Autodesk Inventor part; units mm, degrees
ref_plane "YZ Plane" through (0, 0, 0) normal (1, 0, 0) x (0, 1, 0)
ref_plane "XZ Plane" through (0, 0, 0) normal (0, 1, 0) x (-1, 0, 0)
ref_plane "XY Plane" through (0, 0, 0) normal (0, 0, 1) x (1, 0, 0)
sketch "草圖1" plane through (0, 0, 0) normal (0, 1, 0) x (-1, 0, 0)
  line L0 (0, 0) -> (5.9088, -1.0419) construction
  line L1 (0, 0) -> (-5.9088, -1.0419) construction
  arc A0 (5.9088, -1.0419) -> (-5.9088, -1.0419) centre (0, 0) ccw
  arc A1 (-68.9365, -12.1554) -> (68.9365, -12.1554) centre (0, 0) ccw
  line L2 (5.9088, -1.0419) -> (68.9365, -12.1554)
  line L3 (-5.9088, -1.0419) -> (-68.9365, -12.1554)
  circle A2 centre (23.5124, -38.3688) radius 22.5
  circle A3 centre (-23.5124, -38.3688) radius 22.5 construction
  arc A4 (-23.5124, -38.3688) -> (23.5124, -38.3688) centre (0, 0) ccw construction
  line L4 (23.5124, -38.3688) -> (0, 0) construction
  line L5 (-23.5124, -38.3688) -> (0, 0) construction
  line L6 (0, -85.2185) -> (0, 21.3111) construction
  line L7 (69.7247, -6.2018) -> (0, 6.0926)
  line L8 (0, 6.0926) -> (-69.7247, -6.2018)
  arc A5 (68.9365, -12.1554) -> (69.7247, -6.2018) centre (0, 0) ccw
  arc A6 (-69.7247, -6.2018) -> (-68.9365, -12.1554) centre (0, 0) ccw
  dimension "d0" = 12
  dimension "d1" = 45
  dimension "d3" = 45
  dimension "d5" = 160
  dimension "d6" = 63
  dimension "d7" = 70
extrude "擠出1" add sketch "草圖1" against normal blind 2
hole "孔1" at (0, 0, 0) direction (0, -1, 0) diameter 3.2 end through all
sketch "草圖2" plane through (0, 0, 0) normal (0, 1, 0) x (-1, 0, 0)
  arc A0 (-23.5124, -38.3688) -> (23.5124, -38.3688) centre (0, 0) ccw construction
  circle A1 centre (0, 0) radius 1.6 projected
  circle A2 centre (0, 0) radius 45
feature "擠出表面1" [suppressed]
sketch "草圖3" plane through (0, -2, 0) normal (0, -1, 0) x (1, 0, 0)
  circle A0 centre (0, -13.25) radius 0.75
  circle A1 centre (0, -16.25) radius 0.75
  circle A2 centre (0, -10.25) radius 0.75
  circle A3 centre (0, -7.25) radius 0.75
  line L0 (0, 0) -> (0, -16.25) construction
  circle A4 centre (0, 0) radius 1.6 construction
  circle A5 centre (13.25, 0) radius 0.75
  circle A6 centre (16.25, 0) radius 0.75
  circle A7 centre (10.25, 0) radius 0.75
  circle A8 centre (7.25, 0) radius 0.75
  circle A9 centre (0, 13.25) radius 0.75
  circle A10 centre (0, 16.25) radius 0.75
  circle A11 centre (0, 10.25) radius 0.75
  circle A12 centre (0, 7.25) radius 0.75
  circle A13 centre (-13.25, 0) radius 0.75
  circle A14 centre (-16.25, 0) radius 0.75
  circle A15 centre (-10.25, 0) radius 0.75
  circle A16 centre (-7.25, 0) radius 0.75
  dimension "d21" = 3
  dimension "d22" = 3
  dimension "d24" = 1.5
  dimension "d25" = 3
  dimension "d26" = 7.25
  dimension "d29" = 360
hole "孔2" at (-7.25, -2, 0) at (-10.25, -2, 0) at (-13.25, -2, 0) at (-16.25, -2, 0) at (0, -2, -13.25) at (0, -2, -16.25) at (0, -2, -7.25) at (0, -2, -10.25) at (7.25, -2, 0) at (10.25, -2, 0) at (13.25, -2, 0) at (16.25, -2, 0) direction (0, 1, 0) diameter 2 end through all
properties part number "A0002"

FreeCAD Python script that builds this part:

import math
import FreeCAD as App
import Part
import Sketcher
Q = App.Units.Quantity

doc = App.newDocument("Part")
body = doc.addObject("PartDesign::Body", "Body")

sketch1 = body.newObject("Sketcher::SketchObject", "Sketch")
sketch1.AttachmentSupport = (doc.getObject("XZ_Plane"), [""])
sketch1.MapMode = "FlatFace"
sketch1.addGeometry([
    Part.ArcOfCircle(Part.Circle(App.Vector(0, 0, 0), App.Vector(0, 0, 1), 69.999963), math.radians(-169.999972), math.radians(-10.000028)),
    Part.ArcOfCircle(Part.Circle(App.Vector(0.005109, 0.000788, 0), App.Vector(0, 0, 1), 70.005131), math.radians(-174.916819), math.radians(-170.000062)),
    Part.LineSegment(App.Vector(-69.7247, -6.2018, 0), App.Vector(0, 6.0926, 0)),
    Part.LineSegment(App.Vector(0, 6.0926, 0), App.Vector(69.7247, -6.2018, 0)),
    Part.ArcOfCircle(Part.Circle(App.Vector(0.005137, -0.000568, 0), App.Vector(0, 0, 1), 69.994805), math.radians(-10.0003), math.radians(-5.082818)),
    Part.Circle(App.Vector(-23.5124, -38.3688, 0), App.Vector(0, 0, 1), 22.5),
], False)
sketch1.addConstraint([
    Sketcher.Constraint("Tangent", 0, 1, 1, 2),
    Sketcher.Constraint("Coincident", 1, 1, 2, 1),
    Sketcher.Constraint("Coincident", 2, 2, 3, 1),
    Sketcher.Constraint("Coincident", 3, 2, 4, 2),
    Sketcher.Constraint("Tangent", 4, 1, 0, 2),
    Sketcher.Constraint("Coincident", 0, 3, -1, 1),
    Sketcher.Constraint("Symmetric", 1, 3, 4, 3, -1),
    Sketcher.Constraint("PointOnObject", 2, 2, -2),
    Sketcher.Constraint("Horizontal", 1, 1, 3, 2),
    Sketcher.Constraint("Diameter", 5, Q("45 mm")),
    Sketcher.Constraint("Radius", 0, Q("70 mm")),
    Sketcher.Constraint("Angle", 2, Q("10 deg")),
    Sketcher.Constraint("Radius", 1, Q("70.0051 mm")),
    Sketcher.Constraint("DistanceX", 0, 1, 5, 3, Q("45.424 mm")),
    Sketcher.Constraint("DistanceY", 5, 3, 1, 1, Q("32.167 mm")),
    Sketcher.Constraint("DistanceX", 5, 3, 3, 2, Q("93.237 mm")),
    Sketcher.Constraint("DistanceY", 4, 1, 2, 2, Q("18.248 mm")),
])
pad1 = body.newObject("PartDesign::Pad", "Pad")
pad1.Profile = sketch1
pad1.Length = 2

sketch2 = body.newObject("Sketcher::SketchObject", "Sketch001")
sketch2.AttachmentSupport = (doc.getObject("XZ_Plane"), [""])
sketch2.MapMode = "FlatFace"
sketch2.addGeometry(Part.Circle(App.Vector(0, 0, 0), App.Vector(0, 0, 1), 1.6), False)
sketch2.addConstraint([
    Sketcher.Constraint("Coincident", 0, 3, -1, 1),
    Sketcher.Constraint("Diameter", 0, Q("3.2 mm")),
])
doc.recompute()
hole = body.newObject("PartDesign::Hole", "Hole")
hole.Profile = sketch2
hole.ThreadType = "None"
hole.Diameter = 3.2
hole.DepthType = "ThroughAll"
hole.Reversed = True

sketch3 = body.newObject("Sketcher::SketchObject", "Sketch002")
sketch3.AttachmentSupport = (doc.getObject("XZ_Plane"), [""])
sketch3.MapMode = "FlatFace"
sketch3.AttachmentOffset = App.Placement(App.Vector(0, 0, 2), App.Rotation())
sketch3.addGeometry([
    Part.Circle(App.Vector(-7.2, 0, 0), App.Vector(0, 0, 1), 1),
    Part.Circle(App.Vector(-10.2, 0, 0), App.Vector(0, 0, 1), 1),
    Part.Circle(App.Vector(-13.2, 0, 0), App.Vector(0, 0, 1), 1),
    Part.Circle(App.Vector(-16.2, 0, 0), App.Vector(0, 0, 1), 1),
    Part.Circle(App.Vector(0, -13.2, 0), App.Vector(0, 0, 1), 1),
    Part.Circle(App.Vector(0, -16.2, 0), App.Vector(0, 0, 1), 1),
    Part.Circle(App.Vector(0, -7.2, 0), App.Vector(0, 0, 1), 1),
    Part.Circle(App.Vector(0, -10.2, 0), App.Vector(0, 0, 1), 1),
    Part.Circle(App.Vector(7.2, 0, 0), App.Vector(0, 0, 1), 1),
    Part.Circle(App.Vector(10.2, 0, 0), App.Vector(0, 0, 1), 1),
    Part.Circle(App.Vector(13.2, 0, 0), App.Vector(0, 0, 1), 1),
    Part.Circle(App.Vector(16.2, 0, 0), App.Vector(0, 0, 1), 1),
], False)
sketch3.addConstraint([
    Sketcher.Constraint("Equal", 0, 1),
    Sketcher.Constraint("Equal", 1, 2),
    Sketcher.Constraint("Equal", 2, 3),
    Sketcher.Constraint("Equal", 3, 4),
    Sketcher.Constraint("Equal", 4, 5),
    Sketcher.Constraint("Equal", 5, 6),
    Sketcher.Constraint("Equal", 6, 7),
    Sketcher.Constraint("Equal", 7, 8),
    Sketcher.Constraint("Equal", 8, 9),
    Sketcher.Constraint("Equal", 9, 10),
    Sketcher.Constraint("Equal", 10, 11),
    Sketcher.Constraint("Symmetric", 0, 3, 8, 3, -1, 1),
    Sketcher.Constraint("Symmetric", 1, 3, 9, 3, -1, 1),
    Sketcher.Constraint("Symmetric", 2, 3, 10, 3, -1, 1),
    Sketcher.Constraint("Symmetric", 3, 3, 11, 3, -1, 1),
    Sketcher.Constraint("PointOnObject", 0, 3, -1),
    Sketcher.Constraint("PointOnObject", 1, 3, -1),
    Sketcher.Constraint("PointOnObject", 2, 3, -1),
    Sketcher.Constraint("PointOnObject", 3, 3, -1),
    Sketcher.Constraint("PointOnObject", 4, 3, -2),
    Sketcher.Constraint("PointOnObject", 5, 3, -2),
    Sketcher.Constraint("PointOnObject", 6, 3, -2),
    Sketcher.Constraint("PointOnObject", 7, 3, -2),
    Sketcher.Constraint("Diameter", 0, Q("2 mm")),
    Sketcher.Constraint("DistanceX", 1, 3, 0, 3, Q("3 mm")),
    Sketcher.Constraint("DistanceX", 2, 3, 1, 3, Q("3 mm")),
    Sketcher.Constraint("DistanceX", 3, 3, 2, 3, Q("3 mm")),
    Sketcher.Constraint("DistanceY", 5, 3, 4, 3, Q("3 mm")),
    Sketcher.Constraint("DistanceY", 4, 3, 6, 3, Q("6 mm")),
    Sketcher.Constraint("DistanceY", 4, 3, 7, 3, Q("3 mm")),
    Sketcher.Constraint("DistanceX", 0, 3, 8, 3, Q("14.5 mm")),
    Sketcher.Constraint("DistanceY", 4, 3, -1, 1, Q("13.25 mm")),
])
doc.recompute()
hole2 = body.newObject("PartDesign::Hole", "Hole001")
hole2.Profile = sketch3
hole2.ThreadType = "None"
hole2.Diameter = 2
hole2.DepthType = "ThroughAll"

doc.recompute()
